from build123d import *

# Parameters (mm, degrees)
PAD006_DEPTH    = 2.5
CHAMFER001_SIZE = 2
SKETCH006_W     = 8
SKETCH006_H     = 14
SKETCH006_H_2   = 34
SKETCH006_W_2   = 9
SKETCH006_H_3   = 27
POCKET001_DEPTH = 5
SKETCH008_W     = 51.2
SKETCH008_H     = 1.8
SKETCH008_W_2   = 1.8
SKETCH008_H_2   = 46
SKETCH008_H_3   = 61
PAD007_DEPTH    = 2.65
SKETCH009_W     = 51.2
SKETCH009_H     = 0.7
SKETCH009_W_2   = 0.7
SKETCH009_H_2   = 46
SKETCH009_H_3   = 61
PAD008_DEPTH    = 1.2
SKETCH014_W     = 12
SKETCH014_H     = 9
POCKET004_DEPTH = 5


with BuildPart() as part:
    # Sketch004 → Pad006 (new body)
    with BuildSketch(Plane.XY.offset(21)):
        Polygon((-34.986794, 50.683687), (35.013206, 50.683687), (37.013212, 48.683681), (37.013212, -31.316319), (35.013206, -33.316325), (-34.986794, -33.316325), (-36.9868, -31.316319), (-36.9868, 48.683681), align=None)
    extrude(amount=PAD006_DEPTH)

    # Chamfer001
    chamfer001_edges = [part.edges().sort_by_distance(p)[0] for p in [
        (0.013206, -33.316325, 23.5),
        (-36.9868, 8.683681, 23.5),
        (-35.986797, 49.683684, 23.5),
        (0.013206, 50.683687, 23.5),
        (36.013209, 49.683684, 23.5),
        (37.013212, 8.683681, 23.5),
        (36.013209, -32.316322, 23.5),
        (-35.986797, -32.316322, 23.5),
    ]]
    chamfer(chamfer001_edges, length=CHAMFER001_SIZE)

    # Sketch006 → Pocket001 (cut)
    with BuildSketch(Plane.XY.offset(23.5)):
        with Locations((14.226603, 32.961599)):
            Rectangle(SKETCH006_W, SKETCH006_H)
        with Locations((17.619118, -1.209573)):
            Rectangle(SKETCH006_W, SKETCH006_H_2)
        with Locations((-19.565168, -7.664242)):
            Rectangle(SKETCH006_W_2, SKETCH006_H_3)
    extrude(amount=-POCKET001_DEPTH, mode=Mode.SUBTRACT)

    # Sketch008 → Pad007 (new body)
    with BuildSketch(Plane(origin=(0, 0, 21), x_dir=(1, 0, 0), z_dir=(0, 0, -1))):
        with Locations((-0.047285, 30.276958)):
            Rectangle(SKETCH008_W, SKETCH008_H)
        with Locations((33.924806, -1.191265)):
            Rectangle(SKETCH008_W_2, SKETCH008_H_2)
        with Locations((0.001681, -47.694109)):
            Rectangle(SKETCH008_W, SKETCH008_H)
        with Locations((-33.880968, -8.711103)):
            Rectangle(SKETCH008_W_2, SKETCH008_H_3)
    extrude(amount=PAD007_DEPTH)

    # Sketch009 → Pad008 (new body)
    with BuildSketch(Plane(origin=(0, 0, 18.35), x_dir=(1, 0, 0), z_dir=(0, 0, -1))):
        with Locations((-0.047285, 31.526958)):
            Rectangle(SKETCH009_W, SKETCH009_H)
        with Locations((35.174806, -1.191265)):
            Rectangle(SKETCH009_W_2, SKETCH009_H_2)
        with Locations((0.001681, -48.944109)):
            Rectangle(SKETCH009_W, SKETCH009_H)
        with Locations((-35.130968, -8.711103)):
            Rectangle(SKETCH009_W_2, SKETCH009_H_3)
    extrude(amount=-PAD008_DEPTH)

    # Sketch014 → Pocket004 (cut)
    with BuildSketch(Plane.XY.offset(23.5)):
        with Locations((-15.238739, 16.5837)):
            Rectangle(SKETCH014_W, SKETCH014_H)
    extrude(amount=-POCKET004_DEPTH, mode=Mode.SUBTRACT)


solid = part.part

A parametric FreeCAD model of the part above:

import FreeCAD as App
import Part
import Sketcher
Q = App.Units.Quantity


def edges_at(feature, points):
    """Names of the edges that pass closest to the given points."""
    edges = feature.Shape.Edges
    near = lambda p: min(range(len(edges)), key=lambda i: edges[i].distToShape(Part.Vertex(*p))[0])
    return sorted({f"Edge{near(p) + 1}" for p in points})

doc = App.newDocument("Part")
body = doc.addObject("PartDesign::Body", "Body")

sketch1 = body.newObject("Sketcher::SketchObject", "Sketch")
sketch1.AttachmentSupport = (doc.getObject("XY_Plane"), [""])
sketch1.MapMode = "FlatFace"
sketch1.AttachmentOffset = App.Placement(App.Vector(0, 0, 21), App.Rotation())
sketch1.addGeometry(Part.LineSegment(App.Vector(35.013206, 50.683687, 0), App.Vector(-34.986794, 50.683687, 0)), False)
sketch1.addGeometry(Part.LineSegment(App.Vector(-34.986794, 50.683687, 0), App.Vector(-36.9868, 48.683681, 0)), False)
sketch1.addGeometry(Part.LineSegment(App.Vector(-36.9868, 48.683681, 0), App.Vector(-36.9868, -31.316319, 0)), False)
sketch1.addGeometry(Part.LineSegment(App.Vector(-36.9868, -31.316319, 0), App.Vector(-34.986794, -33.316325, 0)), False)
sketch1.addGeometry(Part.LineSegment(App.Vector(-34.986794, -33.316325, 0), App.Vector(35.013206, -33.316325, 0)), False)
sketch1.addGeometry(Part.LineSegment(App.Vector(35.013206, -33.316325, 0), App.Vector(37.013212, -31.316319, 0)), False)
sketch1.addGeometry(Part.LineSegment(App.Vector(37.013212, -31.316319, 0), App.Vector(37.013212, 48.683681, 0)), False)
sketch1.addGeometry(Part.LineSegment(App.Vector(37.013212, 48.683681, 0), App.Vector(35.013206, 50.683687, 0)), False)
sketch1.addConstraint(Sketcher.Constraint("Coincident", 0, 2, 1, 1))
sketch1.addConstraint(Sketcher.Constraint("Coincident", 1, 2, 2, 1))
sketch1.addConstraint(Sketcher.Constraint("Coincident", 2, 2, 3, 1))
sketch1.addConstraint(Sketcher.Constraint("Coincident", 3, 2, 4, 1))
sketch1.addConstraint(Sketcher.Constraint("Coincident", 4, 2, 5, 1))
sketch1.addConstraint(Sketcher.Constraint("Coincident", 5, 2, 6, 1))
sketch1.addConstraint(Sketcher.Constraint("Coincident", 6, 2, 7, 1))
sketch1.addConstraint(Sketcher.Constraint("Coincident", 7, 2, 0, 1))
sketch1.addConstraint(Sketcher.Constraint("Horizontal", 0))
sketch1.addConstraint(Sketcher.Constraint("Vertical", 2))
sketch1.addConstraint(Sketcher.Constraint("Horizontal", 4))
sketch1.addConstraint(Sketcher.Constraint("Vertical", 6))
sketch1.addConstraint(Sketcher.Constraint("Perpendicular", 1, 3))
sketch1.addConstraint(Sketcher.Constraint("Perpendicular", 3, 5))
sketch1.addConstraint(Sketcher.Constraint("Perpendicular", 5, 7))
sketch1.addConstraint(Sketcher.Constraint("Horizontal", 2, 2, 5, 2))
sketch1.addConstraint(Sketcher.Constraint("Horizontal", 1, 2, 6, 2))
sketch1.addConstraint(Sketcher.Constraint("Vertical", 0, 2, 3, 2))
sketch1.addConstraint(Sketcher.Constraint("Vertical", 4, 2, 7, 2))
sketch1.addConstraint(Sketcher.Constraint("DistanceX", 0, 2, 0, 1, Q("70 mm")))
sketch1.addConstraint(Sketcher.Constraint("DistanceY", 2, 2, 2, 1, Q("80 mm")))
sketch1.addConstraint(Sketcher.Constraint("DistanceX", 1, 2, -1, 1, Q("36.9868 mm")))
sketch1.addConstraint(Sketcher.Constraint("DistanceY", -1, 1, 1, 2, Q("48.683681 mm")))
sketch1.addConstraint(Sketcher.Constraint("DistanceY", 3, 2, 0, 2, Q("84.000012 mm")))
pad1 = body.newObject("PartDesign::Pad", "Pad")
pad1.Profile = sketch1
pad1.Length = 2.5
doc.recompute()

chamfer = body.newObject("PartDesign::Chamfer", "Chamfer")
chamfer.Base = (pad1, edges_at(pad1, [
    (0.013, -33.316, 23.5),
    (-36.987, 8.684, 23.5),
    (-35.987, 49.684, 23.5),
    (0.013, 50.684, 23.5),
    (36.013, 49.684, 23.5),
    (37.013, 8.684, 23.5),
    (36.013, -32.316, 23.5),
    (-35.987, -32.316, 23.5),
]))
chamfer.Size = 2

sketch2 = body.newObject("Sketcher::SketchObject", "Sketch001")
sketch2.AttachmentSupport = (doc.getObject("XY_Plane"), [""])
sketch2.MapMode = "FlatFace"
sketch2.AttachmentOffset = App.Placement(App.Vector(0, 0, 23.5), App.Rotation())
sketch2.addGeometry(Part.LineSegment(App.Vector(10.226603, 39.961599, 0), App.Vector(10.226603, 25.961599, 0)), False)
sketch2.addGeometry(Part.LineSegment(App.Vector(10.226603, 25.961599, 0), App.Vector(18.226603, 25.961599, 0)), False)
sketch2.addGeometry(Part.LineSegment(App.Vector(18.226603, 25.961599, 0), App.Vector(18.226603, 39.961599, 0)), False)
sketch2.addGeometry(Part.LineSegment(App.Vector(18.226603, 39.961599, 0), App.Vector(10.226603, 39.961599, 0)), False)
sketch2.addGeometry(Part.LineSegment(App.Vector(13.619118, 15.790427, 0), App.Vector(13.619118, -18.209573, 0)), False)
sketch2.addGeometry(Part.LineSegment(App.Vector(13.619118, -18.209573, 0), App.Vector(21.619118, -18.209573, 0)), False)
sketch2.addGeometry(Part.LineSegment(App.Vector(21.619118, -18.209573, 0), App.Vector(21.619118, 15.790427, 0)), False)
sketch2.addGeometry(Part.LineSegment(App.Vector(21.619118, 15.790427, 0), App.Vector(13.619118, 15.790427, 0)), False)
sketch2.addGeometry(Part.LineSegment(App.Vector(-24.065168, 5.835758, 0), App.Vector(-24.065168, -21.164242, 0)), False)
sketch2.addGeometry(Part.LineSegment(App.Vector(-24.065168, -21.164242, 0), App.Vector(-15.065168, -21.164242, 0)), False)
sketch2.addGeometry(Part.LineSegment(App.Vector(-15.065168, -21.164242, 0), App.Vector(-15.065168, 5.835758, 0)), False)
sketch2.addGeometry(Part.LineSegment(App.Vector(-15.065168, 5.835758, 0), App.Vector(-24.065168, 5.835758, 0)), False)
sketch2.addConstraint(Sketcher.Constraint("Coincident", 0, 2, 1, 1))
sketch2.addConstraint(Sketcher.Constraint("Coincident", 1, 2, 2, 1))
sketch2.addConstraint(Sketcher.Constraint("Coincident", 2, 2, 3, 1))
sketch2.addConstraint(Sketcher.Constraint("Coincident", 3, 2, 0, 1))
sketch2.addConstraint(Sketcher.Constraint("Coincident", 4, 2, 5, 1))
sketch2.addConstraint(Sketcher.Constraint("Coincident", 5, 2, 6, 1))
sketch2.addConstraint(Sketcher.Constraint("Coincident", 6, 2, 7, 1))
sketch2.addConstraint(Sketcher.Constraint("Coincident", 7, 2, 4, 1))
sketch2.addConstraint(Sketcher.Constraint("Coincident", 8, 2, 9, 1))
sketch2.addConstraint(Sketcher.Constraint("Coincident", 9, 2, 10, 1))
sketch2.addConstraint(Sketcher.Constraint("Coincident", 10, 2, 11, 1))
sketch2.addConstraint(Sketcher.Constraint("Coincident", 11, 2, 8, 1))
sketch2.addConstraint(Sketcher.Constraint("Vertical", 0))
sketch2.addConstraint(Sketcher.Constraint("Horizontal", 1))
sketch2.addConstraint(Sketcher.Constraint("Vertical", 2))
sketch2.addConstraint(Sketcher.Constraint("Horizontal", 3))
sketch2.addConstraint(Sketcher.Constraint("Vertical", 4))
sketch2.addConstraint(Sketcher.Constraint("Horizontal", 5))
sketch2.addConstraint(Sketcher.Constraint("Vertical", 6))
sketch2.addConstraint(Sketcher.Constraint("Horizontal", 7))
sketch2.addConstraint(Sketcher.Constraint("Vertical", 8))
sketch2.addConstraint(Sketcher.Constraint("Horizontal", 9))
sketch2.addConstraint(Sketcher.Constraint("Vertical", 10))
sketch2.addConstraint(Sketcher.Constraint("Horizontal", 11))
sketch2.addConstraint(Sketcher.Constraint("Equal", 3, 5))
sketch2.addConstraint(Sketcher.Constraint("DistanceX", 1, 1, 1, 2, Q("8 mm")))
sketch2.addConstraint(Sketcher.Constraint("DistanceX", 9, 1, 9, 2, Q("9 mm")))
sketch2.addConstraint(Sketcher.Constraint("DistanceY", 0, 2, 0, 1, Q("14 mm")))
sketch2.addConstraint(Sketcher.Constraint("DistanceY", 4, 2, 4, 1, Q("34 mm")))
sketch2.addConstraint(Sketcher.Constraint("DistanceY", 8, 2, 8, 1, Q("27 mm")))
sketch2.addConstraint(Sketcher.Constraint("DistanceY", -1, 1, 0, 2, Q("25.961599 mm")))
sketch2.addConstraint(Sketcher.Constraint("DistanceX", -1, 1, 5, 2, Q("21.619118 mm")))
sketch2.addConstraint(Sketcher.Constraint("DistanceX", 8, 2, -1, 1, Q("24.065168 mm")))
sketch2.addConstraint(Sketcher.Constraint("DistanceY", -1, 1, 10, 2, Q("5.835758 mm")))
sketch2.addConstraint(Sketcher.Constraint("DistanceY", 6, 2, 2, 2, Q("24.171172 mm")))
sketch2.addConstraint(Sketcher.Constraint("DistanceX", 8, 2, 0, 2, Q("34.291771 mm")))
pocket1 = body.newObject("PartDesign::Pocket", "Pocket")
pocket1.Profile = sketch2
pocket1.Length = 5

sketch3 = body.newObject("Sketcher::SketchObject", "Sketch002")
sketch3.AttachmentSupport = (doc.getObject("XY_Plane"), [""])
sketch3.MapMode = "FlatFace"
sketch3.AttachmentOffset = App.Placement(App.Vector(0, 0, 21), App.Rotation())
sketch3.addGeometry(Part.LineSegment(App.Vector(-25.647285, -31.176958, 0), App.Vector(-25.647285, -29.376958, 0)), False)
sketch3.addGeometry(Part.LineSegment(App.Vector(-25.647285, -29.376958, 0), App.Vector(25.552715, -29.376958, 0)), False)
sketch3.addGeometry(Part.LineSegment(App.Vector(25.552715, -29.376958, 0), App.Vector(25.552715, -31.176958, 0)), False)
sketch3.addGeometry(Part.LineSegment(App.Vector(25.552715, -31.176958, 0), App.Vector(-25.647285, -31.176958, 0)), False)
sketch3.addGeometry(Part.LineSegment(App.Vector(33.024806, -21.808735, 0), App.Vector(33.024806, 24.191265, 0)), False)
sketch3.addGeometry(Part.LineSegment(App.Vector(33.024806, 24.191265, 0), App.Vector(34.824806, 24.191265, 0)), False)
sketch3.addGeometry(Part.LineSegment(App.Vector(34.824806, 24.191265, 0), App.Vector(34.824806, -21.808735, 0)), False)
sketch3.addGeometry(Part.LineSegment(App.Vector(34.824806, -21.808735, 0), App.Vector(33.024806, -21.808735, 0)), False)
sketch3.addGeometry(Part.LineSegment(App.Vector(-25.598319, 46.794109, 0), App.Vector(-25.598319, 48.594109, 0)), False)
sketch3.addGeometry(Part.LineSegment(App.Vector(-25.598319, 48.594109, 0), App.Vector(25.601681, 48.594109, 0)), False)
sketch3.addGeometry(Part.LineSegment(App.Vector(25.601681, 48.594109, 0), App.Vector(25.601681, 46.794109, 0)), False)
sketch3.addGeometry(Part.LineSegment(App.Vector(25.601681, 46.794109, 0), App.Vector(-25.598319, 46.794109, 0)), False)
sketch3.addGeometry(Part.LineSegment(App.Vector(-34.780968, -21.788897, 0), App.Vector(-34.780968, 39.211103, 0)), False)
sketch3.addGeometry(Part.LineSegment(App.Vector(-34.780968, 39.211103, 0), App.Vector(-32.980968, 39.211103, 0)), False)
sketch3.addGeometry(Part.LineSegment(App.Vector(-32.980968, 39.211103, 0), App.Vector(-32.980968, -21.788897, 0)), False)
sketch3.addGeometry(Part.LineSegment(App.Vector(-32.980968, -21.788897, 0), App.Vector(-34.780968, -21.788897, 0)), False)
sketch3.addConstraint(Sketcher.Constraint("Coincident", 0, 2, 1, 1))
sketch3.addConstraint(Sketcher.Constraint("Coincident", 1, 2, 2, 1))
sketch3.addConstraint(Sketcher.Constraint("Coincident", 2, 2, 3, 1))
sketch3.addConstraint(Sketcher.Constraint("Coincident", 3, 2, 0, 1))
sketch3.addConstraint(Sketcher.Constraint("Coincident", 4, 2, 5, 1))
sketch3.addConstraint(Sketcher.Constraint("Coincident", 5, 2, 6, 1))
sketch3.addConstraint(Sketcher.Constraint("Coincident", 6, 2, 7, 1))
sketch3.addConstraint(Sketcher.Constraint("Coincident", 7, 2, 4, 1))
sketch3.addConstraint(Sketcher.Constraint("Coincident", 8, 2, 9, 1))
sketch3.addConstraint(Sketcher.Constraint("Coincident", 9, 2, 10, 1))
sketch3.addConstraint(Sketcher.Constraint("Coincident", 10, 2, 11, 1))
sketch3.addConstraint(Sketcher.Constraint("Coincident", 11, 2, 8, 1))
sketch3.addConstraint(Sketcher.Constraint("Coincident", 12, 2, 13, 1))
sketch3.addConstraint(Sketcher.Constraint("Coincident", 13, 2, 14, 1))
sketch3.addConstraint(Sketcher.Constraint("Coincident", 14, 2, 15, 1))
sketch3.addConstraint(Sketcher.Constraint("Coincident", 15, 2, 12, 1))
sketch3.addConstraint(Sketcher.Constraint("Vertical", 0))
sketch3.addConstraint(Sketcher.Constraint("Horizontal", 1))
sketch3.addConstraint(Sketcher.Constraint("Vertical", 2))
sketch3.addConstraint(Sketcher.Constraint("Horizontal", 3))
sketch3.addConstraint(Sketcher.Constraint("Vertical", 4))
sketch3.addConstraint(Sketcher.Constraint("Horizontal", 5))
sketch3.addConstraint(Sketcher.Constraint("Vertical", 6))
sketch3.addConstraint(Sketcher.Constraint("Horizontal", 7))
sketch3.addConstraint(Sketcher.Constraint("Vertical", 8))
sketch3.addConstraint(Sketcher.Constraint("Horizontal", 9))
sketch3.addConstraint(Sketcher.Constraint("Vertical", 10))
sketch3.addConstraint(Sketcher.Constraint("Horizontal", 11))
sketch3.addConstraint(Sketcher.Constraint("Vertical", 12))
sketch3.addConstraint(Sketcher.Constraint("Horizontal", 13))
sketch3.addConstraint(Sketcher.Constraint("Vertical", 14))
sketch3.addConstraint(Sketcher.Constraint("Horizontal", 15))
sketch3.addConstraint(Sketcher.Constraint("Equal", 3, 9))
sketch3.addConstraint(Sketcher.Constraint("Equal", 7, 13))
sketch3.addConstraint(Sketcher.Constraint("Equal", 15, 0))
sketch3.addConstraint(Sketcher.Constraint("Equal", 2, 8))
sketch3.addConstraint(Sketcher.Constraint("DistanceY", 4, 1, 4, 2, Q("46 mm")))
sketch3.addConstraint(Sketcher.Constraint("DistanceY", 12, 1, 12, 2, Q("61 mm")))
sketch3.addConstraint(Sketcher.Constraint("DistanceX", 1, 1, 1, 2, Q("51.2 mm")))
sketch3.addConstraint(Sketcher.Constraint("DistanceX", 5, 1, 5, 2, Q("1.8 mm")))
sketch3.addConstraint(Sketcher.Constraint("DistanceX", 8, 2, -1, 1, Q("25.598319 mm")))
sketch3.addConstraint(Sketcher.Constraint("DistanceY", -1, 1, 8, 2, Q("48.594109 mm")))
sketch3.addConstraint(Sketcher.Constraint("DistanceX", 1, 2, 4, 2, Q("7.472091 mm")))
sketch3.addConstraint(Sketcher.Constraint("DistanceX", 12, 2, 11, 2, Q("9.182649 mm")))
sketch3.addConstraint(Sketcher.Constraint("DistanceY", 0, 2, 12, 2, Q("68.588061 mm")))
sketch3.addConstraint(Sketcher.Constraint("DistanceX", 0, 2, -1, 1, Q("25.647285 mm")))
sketch3.addConstraint(Sketcher.Constraint("DistanceY", 0, 2, -1, 1, Q("29.376958 mm")))
sketch3.addConstraint(Sketcher.Constraint("DistanceY", -1, 1, 4, 2, Q("24.191265 mm")))
pad2 = body.newObject("PartDesign::Pad", "Pad001")
pad2.Profile = sketch3
pad2.Length = 2.65
pad2.Reversed = True

sketch4 = body.newObject("Sketcher::SketchObject", "Sketch003")
sketch4.AttachmentSupport = (doc.getObject("XY_Plane"), [""])
sketch4.MapMode = "FlatFace"
sketch4.AttachmentOffset = App.Placement(App.Vector(0, 0, 18.35), App.Rotation())
sketch4.addGeometry(Part.LineSegment(App.Vector(-25.647285, -31.876958, 0), App.Vector(-25.647285, -31.176958, 0)), False)
sketch4.addGeometry(Part.LineSegment(App.Vector(-25.647285, -31.176958, 0), App.Vector(25.552715, -31.176958, 0)), False)
sketch4.addGeometry(Part.LineSegment(App.Vector(25.552715, -31.176958, 0), App.Vector(25.552715, -31.876958, 0)), False)
sketch4.addGeometry(Part.LineSegment(App.Vector(25.552715, -31.876958, 0), App.Vector(-25.647285, -31.876958, 0)), False)
sketch4.addGeometry(Part.LineSegment(App.Vector(34.824806, -21.808735, 0), App.Vector(34.824806, 24.191265, 0)), False)
sketch4.addGeometry(Part.LineSegment(App.Vector(34.824806, 24.191265, 0), App.Vector(35.524806, 24.191265, 0)), False)
sketch4.addGeometry(Part.LineSegment(App.Vector(35.524806, 24.191265, 0), App.Vector(35.524806, -21.808735, 0)), False)
sketch4.addGeometry(Part.LineSegment(App.Vector(35.524806, -21.808735, 0), App.Vector(34.824806, -21.808735, 0)), False)
sketch4.addGeometry(Part.LineSegment(App.Vector(-25.598319, 48.594109, 0), App.Vector(-25.598319, 49.294109, 0)), False)
sketch4.addGeometry(Part.LineSegment(App.Vector(-25.598319, 49.294109, 0), App.Vector(25.601681, 49.294109, 0)), False)
sketch4.addGeometry(Part.LineSegment(App.Vector(25.601681, 49.294109, 0), App.Vector(25.601681, 48.594109, 0)), False)
sketch4.addGeometry(Part.LineSegment(App.Vector(25.601681, 48.594109, 0), App.Vector(-25.598319, 48.594109, 0)), False)
sketch4.addGeometry(Part.LineSegment(App.Vector(-35.480968, -21.788897, 0), App.Vector(-35.480968, 39.211103, 0)), False)
sketch4.addGeometry(Part.LineSegment(App.Vector(-35.480968, 39.211103, 0), App.Vector(-34.780968, 39.211103, 0)), False)
sketch4.addGeometry(Part.LineSegment(App.Vector(-34.780968, 39.211103, 0), App.Vector(-34.780968, -21.788897, 0)), False)
sketch4.addGeometry(Part.LineSegment(App.Vector(-34.780968, -21.788897, 0), App.Vector(-35.480968, -21.788897, 0)), False)
sketch4.addConstraint(Sketcher.Constraint("Coincident", 0, 2, 1, 1))
sketch4.addConstraint(Sketcher.Constraint("Coincident", 1, 2, 2, 1))
sketch4.addConstraint(Sketcher.Constraint("Coincident", 2, 2, 3, 1))
sketch4.addConstraint(Sketcher.Constraint("Coincident", 3, 2, 0, 1))
sketch4.addConstraint(Sketcher.Constraint("Coincident", 4, 2, 5, 1))
sketch4.addConstraint(Sketcher.Constraint("Coincident", 5, 2, 6, 1))
sketch4.addConstraint(Sketcher.Constraint("Coincident", 6, 2, 7, 1))
sketch4.addConstraint(Sketcher.Constraint("Coincident", 7, 2, 4, 1))
sketch4.addConstraint(Sketcher.Constraint("Coincident", 8, 2, 9, 1))
sketch4.addConstraint(Sketcher.Constraint("Coincident", 9, 2, 10, 1))
sketch4.addConstraint(Sketcher.Constraint("Coincident", 10, 2, 11, 1))
sketch4.addConstraint(Sketcher.Constraint("Coincident", 11, 2, 8, 1))
sketch4.addConstraint(Sketcher.Constraint("Coincident", 12, 2, 13, 1))
sketch4.addConstraint(Sketcher.Constraint("Coincident", 13, 2, 14, 1))
sketch4.addConstraint(Sketcher.Constraint("Coincident", 14, 2, 15, 1))
sketch4.addConstraint(Sketcher.Constraint("Coincident", 15, 2, 12, 1))
sketch4.addConstraint(Sketcher.Constraint("Vertical", 0))
sketch4.addConstraint(Sketcher.Constraint("Horizontal", 1))
sketch4.addConstraint(Sketcher.Constraint("Vertical", 2))
sketch4.addConstraint(Sketcher.Constraint("Horizontal", 3))
sketch4.addConstraint(Sketcher.Constraint("Vertical", 4))
sketch4.addConstraint(Sketcher.Constraint("Horizontal", 5))
sketch4.addConstraint(Sketcher.Constraint("Vertical", 6))
sketch4.addConstraint(Sketcher.Constraint("Horizontal", 7))
sketch4.addConstraint(Sketcher.Constraint("Vertical", 8))
sketch4.addConstraint(Sketcher.Constraint("Horizontal", 9))
sketch4.addConstraint(Sketcher.Constraint("Vertical", 10))
sketch4.addConstraint(Sketcher.Constraint("Horizontal", 11))
sketch4.addConstraint(Sketcher.Constraint("Vertical", 12))
sketch4.addConstraint(Sketcher.Constraint("Horizontal", 13))
sketch4.addConstraint(Sketcher.Constraint("Vertical", 14))
sketch4.addConstraint(Sketcher.Constraint("Horizontal", 15))
sketch4.addConstraint(Sketcher.Constraint("Equal", 3, 9))
sketch4.addConstraint(Sketcher.Constraint("Equal", 7, 13))
sketch4.addConstraint(Sketcher.Constraint("Equal", 15, 0))
sketch4.addConstraint(Sketcher.Constraint("Equal", 2, 8))
sketch4.addConstraint(Sketcher.Constraint("DistanceY", 4, 1, 4, 2, Q("46 mm")))
sketch4.addConstraint(Sketcher.Constraint("DistanceY", 12, 1, 12, 2, Q("61 mm")))
sketch4.addConstraint(Sketcher.Constraint("DistanceX", 1, 1, 1, 2, Q("51.2 mm")))
sketch4.addConstraint(Sketcher.Constraint("DistanceX", 5, 1, 5, 2, Q("0.7 mm")))
sketch4.addConstraint(Sketcher.Constraint("DistanceX", 8, 2, -1, 1, Q("25.598319 mm")))
sketch4.addConstraint(Sketcher.Constraint("DistanceY", -1, 1, 8, 2, Q("49.294109 mm")))
sketch4.addConstraint(Sketcher.Constraint("DistanceX", 1, 2, 4, 2, Q("9.272091 mm")))
sketch4.addConstraint(Sketcher.Constraint("DistanceX", 12, 2, 11, 2, Q("9.882649 mm")))
sketch4.addConstraint(Sketcher.Constraint("DistanceY", 0, 2, 12, 2, Q("70.388061 mm")))
sketch4.addConstraint(Sketcher.Constraint("DistanceX", 0, 2, -1, 1, Q("25.647285 mm")))
sketch4.addConstraint(Sketcher.Constraint("DistanceY", 0, 2, -1, 1, Q("31.176958 mm")))
sketch4.addConstraint(Sketcher.Constraint("DistanceY", -1, 1, 4, 2, Q("24.191265 mm")))
pad3 = body.newObject("PartDesign::Pad", "Pad002")
pad3.Profile = sketch4
pad3.Length = 1.2

sketch5 = body.newObject("Sketcher::SketchObject", "Sketch004")
sketch5.AttachmentSupport = (doc.getObject("XY_Plane"), [""])
sketch5.MapMode = "FlatFace"
sketch5.AttachmentOffset = App.Placement(App.Vector(0, 0, 23.5), App.Rotation())
sketch5.addGeometry(Part.LineSegment(App.Vector(-21.238739, 21.0837, 0), App.Vector(-21.238739, 12.0837, 0)), False)
sketch5.addGeometry(Part.LineSegment(App.Vector(-21.238739, 12.0837, 0), App.Vector(-9.238739, 12.0837, 0)), False)
sketch5.addGeometry(Part.LineSegment(App.Vector(-9.238739, 12.0837, 0), App.Vector(-9.238739, 21.0837, 0)), False)
sketch5.addGeometry(Part.LineSegment(App.Vector(-9.238739, 21.0837, 0), App.Vector(-21.238739, 21.0837, 0)), False)
sketch5.addConstraint(Sketcher.Constraint("Coincident", 0, 2, 1, 1))
sketch5.addConstraint(Sketcher.Constraint("Coincident", 1, 2, 2, 1))
sketch5.addConstraint(Sketcher.Constraint("Coincident", 2, 2, 3, 1))
sketch5.addConstraint(Sketcher.Constraint("Coincident", 3, 2, 0, 1))
sketch5.addConstraint(Sketcher.Constraint("Vertical", 0))
sketch5.addConstraint(Sketcher.Constraint("Horizontal", 1))
sketch5.addConstraint(Sketcher.Constraint("Vertical", 2))
sketch5.addConstraint(Sketcher.Constraint("Horizontal", 3))
sketch5.addConstraint(Sketcher.Constraint("DistanceX", 1, 1, 1, 2, Q("12 mm")))
sketch5.addConstraint(Sketcher.Constraint("DistanceY", 0, 2, 0, 1, Q("9 mm")))
sketch5.addConstraint(Sketcher.Constraint("DistanceY", -1, 1, 0, 2, Q("12.0837 mm")))
sketch5.addConstraint(Sketcher.Constraint("DistanceX", 0, 2, -1, 1, Q("21.238739 mm")))
pocket2 = body.newObject("PartDesign::Pocket", "Pocket001")
pocket2.Profile = sketch5
pocket2.Length = 5

doc.recompute()
